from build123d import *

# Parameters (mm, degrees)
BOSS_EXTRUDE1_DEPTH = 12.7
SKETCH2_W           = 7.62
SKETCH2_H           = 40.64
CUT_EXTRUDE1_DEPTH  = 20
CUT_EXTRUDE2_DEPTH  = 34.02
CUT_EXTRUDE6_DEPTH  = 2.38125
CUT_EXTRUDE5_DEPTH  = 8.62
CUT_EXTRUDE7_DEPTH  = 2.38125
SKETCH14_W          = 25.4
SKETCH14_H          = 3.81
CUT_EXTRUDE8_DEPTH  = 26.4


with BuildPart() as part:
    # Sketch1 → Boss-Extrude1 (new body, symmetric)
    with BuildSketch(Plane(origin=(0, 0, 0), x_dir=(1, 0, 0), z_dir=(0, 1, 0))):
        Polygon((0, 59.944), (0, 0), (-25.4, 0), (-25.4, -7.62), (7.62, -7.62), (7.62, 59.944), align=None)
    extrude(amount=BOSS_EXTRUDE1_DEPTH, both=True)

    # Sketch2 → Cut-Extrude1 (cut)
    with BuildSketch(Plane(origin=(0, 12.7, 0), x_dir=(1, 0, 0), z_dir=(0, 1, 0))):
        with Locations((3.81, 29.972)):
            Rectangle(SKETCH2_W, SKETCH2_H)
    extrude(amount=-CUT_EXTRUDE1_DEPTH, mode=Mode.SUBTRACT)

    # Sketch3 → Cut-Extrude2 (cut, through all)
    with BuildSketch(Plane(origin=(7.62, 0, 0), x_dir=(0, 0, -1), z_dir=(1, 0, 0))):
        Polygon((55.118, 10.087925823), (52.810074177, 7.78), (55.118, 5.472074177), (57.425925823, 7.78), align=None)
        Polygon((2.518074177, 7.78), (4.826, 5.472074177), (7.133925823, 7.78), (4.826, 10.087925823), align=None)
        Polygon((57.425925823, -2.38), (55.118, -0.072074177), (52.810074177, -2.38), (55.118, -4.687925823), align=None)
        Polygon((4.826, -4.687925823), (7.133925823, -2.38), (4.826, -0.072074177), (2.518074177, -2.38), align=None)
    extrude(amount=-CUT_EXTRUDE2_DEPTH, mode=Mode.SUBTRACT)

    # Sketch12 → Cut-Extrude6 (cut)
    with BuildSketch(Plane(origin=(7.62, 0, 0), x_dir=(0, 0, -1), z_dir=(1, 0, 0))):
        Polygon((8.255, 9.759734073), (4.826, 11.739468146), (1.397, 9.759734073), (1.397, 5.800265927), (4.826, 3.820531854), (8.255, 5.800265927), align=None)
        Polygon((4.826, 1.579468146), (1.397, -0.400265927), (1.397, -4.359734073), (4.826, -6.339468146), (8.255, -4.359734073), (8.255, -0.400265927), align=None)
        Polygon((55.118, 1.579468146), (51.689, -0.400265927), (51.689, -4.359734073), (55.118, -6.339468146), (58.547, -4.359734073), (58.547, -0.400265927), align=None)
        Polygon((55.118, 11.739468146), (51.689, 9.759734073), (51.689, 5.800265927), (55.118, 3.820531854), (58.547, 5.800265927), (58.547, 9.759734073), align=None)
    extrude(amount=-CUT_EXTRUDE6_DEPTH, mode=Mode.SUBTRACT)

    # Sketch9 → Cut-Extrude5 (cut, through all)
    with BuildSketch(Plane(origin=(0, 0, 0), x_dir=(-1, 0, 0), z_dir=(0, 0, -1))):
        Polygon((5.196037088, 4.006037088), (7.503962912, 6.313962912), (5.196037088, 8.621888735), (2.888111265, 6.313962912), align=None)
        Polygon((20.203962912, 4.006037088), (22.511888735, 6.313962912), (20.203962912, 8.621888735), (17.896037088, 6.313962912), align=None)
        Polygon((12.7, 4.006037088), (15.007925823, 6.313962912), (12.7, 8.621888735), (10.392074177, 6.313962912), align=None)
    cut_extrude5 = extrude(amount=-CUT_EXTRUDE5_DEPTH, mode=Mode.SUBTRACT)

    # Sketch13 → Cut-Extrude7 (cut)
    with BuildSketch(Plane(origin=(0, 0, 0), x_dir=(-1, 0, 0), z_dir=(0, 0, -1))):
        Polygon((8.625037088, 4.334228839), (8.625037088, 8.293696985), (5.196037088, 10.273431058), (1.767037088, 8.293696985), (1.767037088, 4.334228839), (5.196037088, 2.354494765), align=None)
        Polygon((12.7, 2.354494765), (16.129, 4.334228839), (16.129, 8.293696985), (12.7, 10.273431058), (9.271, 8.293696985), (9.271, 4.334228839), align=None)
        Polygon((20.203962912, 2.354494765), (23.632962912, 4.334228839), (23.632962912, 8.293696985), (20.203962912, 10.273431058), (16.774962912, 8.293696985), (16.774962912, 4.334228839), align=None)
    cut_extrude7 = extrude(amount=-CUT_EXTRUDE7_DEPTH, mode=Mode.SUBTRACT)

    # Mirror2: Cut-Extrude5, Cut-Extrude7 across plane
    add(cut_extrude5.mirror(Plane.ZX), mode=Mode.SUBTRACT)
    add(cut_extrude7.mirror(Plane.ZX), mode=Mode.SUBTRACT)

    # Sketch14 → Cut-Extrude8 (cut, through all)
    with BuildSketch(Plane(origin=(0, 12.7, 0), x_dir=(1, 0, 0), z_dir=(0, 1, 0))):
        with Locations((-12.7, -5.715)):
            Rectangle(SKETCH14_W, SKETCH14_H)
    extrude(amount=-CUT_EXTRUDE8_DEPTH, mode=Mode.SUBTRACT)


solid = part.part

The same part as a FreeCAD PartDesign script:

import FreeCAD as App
import Part
import Sketcher
Q = App.Units.Quantity

doc = App.newDocument("Part")
body = doc.addObject("PartDesign::Body", "Body")

# Sketch on XZ plane
sketch1 = doc.addObject("Sketcher::SketchObject", "Sketch")
body.addObject(sketch1)
sketch1.AttachmentSupport = (doc.XZ_Plane, [""])
sketch1.MapMode = "FlatFace"
sketch1.addGeometry(Part.LineSegment(App.Vector(0, -59.944, 0), App.Vector(0, 0, 0)), False)
sketch1.addGeometry(Part.LineSegment(App.Vector(0, 0, 0), App.Vector(-25.4, 0, 0)), False)
sketch1.addGeometry(Part.LineSegment(App.Vector(-25.4, 0, 0), App.Vector(-25.4, 7.62, 0)), False)
sketch1.addGeometry(Part.LineSegment(App.Vector(-25.4, 7.62, 0), App.Vector(7.62, 7.62, 0)), False)
sketch1.addGeometry(Part.LineSegment(App.Vector(7.62, 7.62, 0), App.Vector(7.62, -59.944, 0)), False)
sketch1.addGeometry(Part.LineSegment(App.Vector(7.62, -59.944, 0), App.Vector(0, -59.944, 0)), False)
sketch1.addConstraint(Sketcher.Constraint("Coincident", 0, 2, 1, 1))
sketch1.addConstraint(Sketcher.Constraint("Coincident", 1, 2, 2, 1))
sketch1.addConstraint(Sketcher.Constraint("Coincident", 2, 2, 3, 1))
sketch1.addConstraint(Sketcher.Constraint("Coincident", 3, 2, 4, 1))
sketch1.addConstraint(Sketcher.Constraint("Coincident", 4, 2, 5, 1))
sketch1.addConstraint(Sketcher.Constraint("Coincident", 5, 2, 0, 1))
sketch1.addConstraint(Sketcher.Constraint("Vertical", 0))
sketch1.addConstraint(Sketcher.Constraint("Horizontal", 1))
sketch1.addConstraint(Sketcher.Constraint("Vertical", 2))
sketch1.addConstraint(Sketcher.Constraint("Horizontal", 3))
sketch1.addConstraint(Sketcher.Constraint("Vertical", 4))
sketch1.addConstraint(Sketcher.Constraint("Horizontal", 5))
sketch1.addConstraint(Sketcher.Constraint("Coincident", 0, 2, -1, 1))
sketch1.addConstraint(Sketcher.Constraint("Equal", 5, 2))
sketch1.addConstraint(Sketcher.Constraint("DistanceX", 1, 2, 1, 1, Q("1 in")))
sketch1.addConstraint(Sketcher.Constraint("DistanceX", 3, 1, 3, 2, Q("1.3 in")))
sketch1.addConstraint(Sketcher.Constraint("DistanceY", 0, 1, 0, 2, Q("2.36 in")))
pad1 = doc.addObject("PartDesign::Pad", "Pad")
body.addObject(pad1)
pad1.Profile = sketch1
pad1.Length = Q("1 in")
pad1.Midplane = True

# Sketch on XZ plane
sketch2 = doc.addObject("Sketcher::SketchObject", "Sketch001")
body.addObject(sketch2)
sketch2.AttachmentSupport = (doc.XZ_Plane, [""])
sketch2.MapMode = "FlatFace"
sketch2.AttachmentOffset = App.Placement(App.Vector(0, 0, -0.5 * 25.4), App.Rotation())
sketch2.addGeometry(Part.LineSegment(App.Vector(0, -50.292, 0), App.Vector(0, -9.652, 0)), False)
sketch2.addGeometry(Part.LineSegment(App.Vector(0, -9.652, 0), App.Vector(7.62, -9.652, 0)), False)
sketch2.addGeometry(Part.LineSegment(App.Vector(7.62, -9.652, 0), App.Vector(7.62, -50.292, 0)), False)
sketch2.addGeometry(Part.LineSegment(App.Vector(7.62, -50.292, 0), App.Vector(0, -50.292, 0)), False)
sketch2.addConstraint(Sketcher.Constraint("Coincident", 0, 2, 1, 1))
sketch2.addConstraint(Sketcher.Constraint("Coincident", 1, 2, 2, 1))
sketch2.addConstraint(Sketcher.Constraint("Coincident", 2, 2, 3, 1))
sketch2.addConstraint(Sketcher.Constraint("Coincident", 3, 2, 0, 1))
sketch2.addConstraint(Sketcher.Constraint("Vertical", 0))
sketch2.addConstraint(Sketcher.Constraint("Horizontal", 1))
sketch2.addConstraint(Sketcher.Constraint("Vertical", 2))
sketch2.addConstraint(Sketcher.Constraint("Horizontal", 3))
sketch2.addConstraint(Sketcher.Constraint("PointOnObject", 0, 2, -2))
sketch2.addConstraint(Sketcher.Constraint("DistanceX", 1, 1, 1, 2, Q("0.3 in")))
sketch2.addConstraint(Sketcher.Constraint("DistanceY", 0, 1, 0, 2, Q("1.6 in")))
sketch2.addConstraint(Sketcher.Constraint("DistanceY", 0, 2, -1, 1, Q("0.38 in")))
pocket1 = doc.addObject("PartDesign::Pocket", "Pocket")
body.addObject(pocket1)
pocket1.Profile = sketch2
pocket1.Length = 20
pocket1.Reversed = True

# Sketch on YZ plane
sketch3 = doc.addObject("Sketcher::SketchObject", "Sketch002")
body.addObject(sketch3)
sketch3.AttachmentSupport = (doc.YZ_Plane, [""])
sketch3.MapMode = "FlatFace"
sketch3.AttachmentOffset = App.Placement(App.Vector(0, 0, 0.3 * 25.4), App.Rotation())
sketch3.addGeometry(Part.LineSegment(App.Vector(10.087926, -55.118, 0), App.Vector(7.78, -52.810074, 0)), False)
sketch3.addGeometry(Part.LineSegment(App.Vector(7.78, -52.810074, 0), App.Vector(5.472074, -55.118, 0)), False)
sketch3.addGeometry(Part.LineSegment(App.Vector(5.472074, -55.118, 0), App.Vector(7.78, -57.425926, 0)), False)
sketch3.addGeometry(Part.LineSegment(App.Vector(7.78, -57.425926, 0), App.Vector(10.087926, -55.118, 0)), False)
sketch3.addGeometry(Part.LineSegment(App.Vector(7.78, -2.518074, 0), App.Vector(5.472074, -4.826, 0)), False)
sketch3.addGeometry(Part.LineSegment(App.Vector(5.472074, -4.826, 0), App.Vector(7.78, -7.133926, 0)), False)
sketch3.addGeometry(Part.LineSegment(App.Vector(7.78, -7.133926, 0), App.Vector(10.087926, -4.826, 0)), False)
sketch3.addGeometry(Part.LineSegment(App.Vector(10.087926, -4.826, 0), App.Vector(7.78, -2.518074, 0)), False)
sketch3.addGeometry(Part.LineSegment(App.Vector(-2.38, -57.425926, 0), App.Vector(-0.072074, -55.118, 0)), False)
sketch3.addGeometry(Part.LineSegment(App.Vector(-0.072074, -55.118, 0), App.Vector(-2.38, -52.810074, 0)), False)
sketch3.addGeometry(Part.LineSegment(App.Vector(-2.38, -52.810074, 0), App.Vector(-4.687926, -55.118, 0)), False)
sketch3.addGeometry(Part.LineSegment(App.Vector(-4.687926, -55.118, 0), App.Vector(-2.38, -57.425926, 0)), False)
sketch3.addGeometry(Part.LineSegment(App.Vector(-4.687926, -4.826, 0), App.Vector(-2.38, -7.133926, 0)), False)
sketch3.addGeometry(Part.LineSegment(App.Vector(-2.38, -7.133926, 0), App.Vector(-0.072074, -4.826, 0)), False)
sketch3.addGeometry(Part.LineSegment(App.Vector(-0.072074, -4.826, 0), App.Vector(-2.38, -2.518074, 0)), False)
sketch3.addGeometry(Part.LineSegment(App.Vector(-2.38, -2.518074, 0), App.Vector(-4.687926, -4.826, 0)), False)
sketch3.addConstraint(Sketcher.Constraint("Coincident", 0, 2, 1, 1))
sketch3.addConstraint(Sketcher.Constraint("Coincident", 1, 2, 2, 1))
sketch3.addConstraint(Sketcher.Constraint("Coincident", 2, 2, 3, 1))
sketch3.addConstraint(Sketcher.Constraint("Coincident", 3, 2, 0, 1))
sketch3.addConstraint(Sketcher.Constraint("Coincident", 4, 2, 5, 1))
sketch3.addConstraint(Sketcher.Constraint("Coincident", 5, 2, 6, 1))
sketch3.addConstraint(Sketcher.Constraint("Coincident", 6, 2, 7, 1))
sketch3.addConstraint(Sketcher.Constraint("Coincident", 7, 2, 4, 1))
sketch3.addConstraint(Sketcher.Constraint("Coincident", 8, 2, 9, 1))
sketch3.addConstraint(Sketcher.Constraint("Coincident", 9, 2, 10, 1))
sketch3.addConstraint(Sketcher.Constraint("Coincident", 10, 2, 11, 1))
sketch3.addConstraint(Sketcher.Constraint("Coincident", 11, 2, 8, 1))
sketch3.addConstraint(Sketcher.Constraint("Coincident", 12, 2, 13, 1))
sketch3.addConstraint(Sketcher.Constraint("Coincident", 13, 2, 14, 1))
sketch3.addConstraint(Sketcher.Constraint("Coincident", 14, 2, 15, 1))
sketch3.addConstraint(Sketcher.Constraint("Coincident", 15, 2, 12, 1))
sketch3.addConstraint(Sketcher.Constraint("Perpendicular", 0, 1))
sketch3.addConstraint(Sketcher.Constraint("Perpendicular", 1, 2))
sketch3.addConstraint(Sketcher.Constraint("Perpendicular", 2, 3))
sketch3.addConstraint(Sketcher.Constraint("Parallel", 3, 4))
sketch3.addConstraint(Sketcher.Constraint("Perpendicular", 4, 5))
sketch3.addConstraint(Sketcher.Constraint("Perpendicular", 5, 6))
sketch3.addConstraint(Sketcher.Constraint("Perpendicular", 6, 7))
sketch3.addConstraint(Sketcher.Constraint("Perpendicular", 7, 8))
sketch3.addConstraint(Sketcher.Constraint("Perpendicular", 8, 9))
sketch3.addConstraint(Sketcher.Constraint("Perpendicular", 9, 10))
sketch3.addConstraint(Sketcher.Constraint("Perpendicular", 10, 11))
sketch3.addConstraint(Sketcher.Constraint("Parallel", 11, 12))
sketch3.addConstraint(Sketcher.Constraint("Perpendicular", 12, 13))
sketch3.addConstraint(Sketcher.Constraint("Perpendicular", 13, 14))
sketch3.addConstraint(Sketcher.Constraint("Perpendicular", 14, 15))
sketch3.addConstraint(Sketcher.Constraint("Horizontal", 1, 2, 3, 2))
sketch3.addConstraint(Sketcher.Constraint("Horizontal", 4, 2, 6, 2))
sketch3.addConstraint(Sketcher.Constraint("Horizontal", 3, 2, 8, 2))
sketch3.addConstraint(Sketcher.Constraint("Horizontal", 0, 2, 9, 2))
sketch3.addConstraint(Sketcher.Constraint("Horizontal", 8, 2, 10, 2))
sketch3.addConstraint(Sketcher.Constraint("Horizontal", 5, 2, 12, 2))
sketch3.addConstraint(Sketcher.Constraint("Horizontal", 6, 2, 13, 2))
sketch3.addConstraint(Sketcher.Constraint("Horizontal", 7, 2, 14, 2))
sketch3.addConstraint(Sketcher.Constraint("Vertical", 0, 2, 2, 2))
sketch3.addConstraint(Sketcher.Constraint("Vertical", 1, 2, 4, 2))
sketch3.addConstraint(Sketcher.Constraint("Vertical", 2, 2, 5, 2))
sketch3.addConstraint(Sketcher.Constraint("Vertical", 11, 2, 12, 2))
sketch3.addConstraint(Sketcher.Constraint("DistanceX", 8, 2, 3, 2, Q("0.4 in")))
sketch3.addConstraint(Sketcher.Constraint("DistanceY", 1, 2, -1, 1, Q("2.17 in")))
sketch3.addConstraint(Sketcher.Constraint("DistanceY", 4, 2, -1, 1, Q("0.19 in")))
sketch3.addConstraint(Sketcher.Constraint("Distance", 0, Q("0.1285 in")))
sketch3.addConstraint(Sketcher.Constraint("DistanceX", -1, 1, 0, 2, Q("7.78 mm")))
pocket2 = doc.addObject("PartDesign::Pocket", "Pocket001")
body.addObject(pocket2)
pocket2.Profile = sketch3
pocket2.Type = "ThroughAll"

# Sketch on YZ plane
sketch4 = doc.addObject("Sketcher::SketchObject", "Sketch003")
body.addObject(sketch4)
sketch4.AttachmentSupport = (doc.YZ_Plane, [""])
sketch4.MapMode = "FlatFace"
sketch4.AttachmentOffset = App.Placement(App.Vector(0, 0, 0.3 * 25.4), App.Rotation())
sketch4.addGeometry(Part.LineSegment(App.Vector(9.759734, -8.255, 0), App.Vector(11.739468, -4.826, 0)), False)
sketch4.addGeometry(Part.LineSegment(App.Vector(11.739468, -4.826, 0), App.Vector(9.759734, -1.397, 0)), False)
sketch4.addGeometry(Part.LineSegment(App.Vector(9.759734, -1.397, 0), App.Vector(5.800266, -1.397, 0)), False)
sketch4.addGeometry(Part.LineSegment(App.Vector(5.800266, -1.397, 0), App.Vector(3.820532, -4.826, 0)), False)
sketch4.addGeometry(Part.LineSegment(App.Vector(3.820532, -4.826, 0), App.Vector(5.800266, -8.255, 0)), False)
sketch4.addGeometry(Part.LineSegment(App.Vector(5.800266, -8.255, 0), App.Vector(9.759734, -8.255, 0)), False)
sketch4.addGeometry(Part.LineSegment(App.Vector(1.579468, -4.826, 0), App.Vector(-0.400266, -1.397, 0)), False)
sketch4.addGeometry(Part.LineSegment(App.Vector(-0.400266, -1.397, 0), App.Vector(-4.359734, -1.397, 0)), False)
sketch4.addGeometry(Part.LineSegment(App.Vector(-4.359734, -1.397, 0), App.Vector(-6.339468, -4.826, 0)), False)
sketch4.addGeometry(Part.LineSegment(App.Vector(-6.339468, -4.826, 0), App.Vector(-4.359734, -8.255, 0)), False)
sketch4.addGeometry(Part.LineSegment(App.Vector(-4.359734, -8.255, 0), App.Vector(-0.400266, -8.255, 0)), False)
sketch4.addGeometry(Part.LineSegment(App.Vector(-0.400266, -8.255, 0), App.Vector(1.579468, -4.826, 0)), False)
sketch4.addGeometry(Part.LineSegment(App.Vector(1.579468, -55.118, 0), App.Vector(-0.400266, -51.689, 0)), False)
sketch4.addGeometry(Part.LineSegment(App.Vector(-0.400266, -51.689, 0), App.Vector(-4.359734, -51.689, 0)), False)
sketch4.addGeometry(Part.LineSegment(App.Vector(-4.359734, -51.689, 0), App.Vector(-6.339468, -55.118, 0)), False)
sketch4.addGeometry(Part.LineSegment(App.Vector(-6.339468, -55.118, 0), App.Vector(-4.359734, -58.547, 0)), False)
sketch4.addGeometry(Part.LineSegment(App.Vector(-4.359734, -58.547, 0), App.Vector(-0.400266, -58.547, 0)), False)
sketch4.addGeometry(Part.LineSegment(App.Vector(-0.400266, -58.547, 0), App.Vector(1.579468, -55.118, 0)), False)
sketch4.addGeometry(Part.LineSegment(App.Vector(11.739468, -55.118, 0), App.Vector(9.759734, -51.689, 0)), False)
sketch4.addGeometry(Part.LineSegment(App.Vector(9.759734, -51.689, 0), App.Vector(5.800266, -51.689, 0)), False)
sketch4.addGeometry(Part.LineSegment(App.Vector(5.800266, -51.689, 0), App.Vector(3.820532, -55.118, 0)), False)
sketch4.addGeometry(Part.LineSegment(App.Vector(3.820532, -55.118, 0), App.Vector(5.800266, -58.547, 0)), False)
sketch4.addGeometry(Part.LineSegment(App.Vector(5.800266, -58.547, 0), App.Vector(9.759734, -58.547, 0)), False)
sketch4.addGeometry(Part.LineSegment(App.Vector(9.759734, -58.547, 0), App.Vector(11.739468, -55.118, 0)), False)
sketch4.addConstraint(Sketcher.Constraint("Coincident", 0, 2, 1, 1))
sketch4.addConstraint(Sketcher.Constraint("Coincident", 1, 2, 2, 1))
sketch4.addConstraint(Sketcher.Constraint("Coincident", 2, 2, 3, 1))
sketch4.addConstraint(Sketcher.Constraint("Coincident", 3, 2, 4, 1))
sketch4.addConstraint(Sketcher.Constraint("Coincident", 4, 2, 5, 1))
sketch4.addConstraint(Sketcher.Constraint("Coincident", 5, 2, 0, 1))
sketch4.addConstraint(Sketcher.Constraint("Coincident", 6, 2, 7, 1))
sketch4.addConstraint(Sketcher.Constraint("Coincident", 7, 2, 8, 1))
sketch4.addConstraint(Sketcher.Constraint("Coincident", 8, 2, 9, 1))
sketch4.addConstraint(Sketcher.Constraint("Coincident", 9, 2, 10, 1))
sketch4.addConstraint(Sketcher.Constraint("Coincident", 10, 2, 11, 1))
sketch4.addConstraint(Sketcher.Constraint("Coincident", 11, 2, 6, 1))
sketch4.addConstraint(Sketcher.Constraint("Coincident", 12, 2, 13, 1))
sketch4.addConstraint(Sketcher.Constraint("Coincident", 13, 2, 14, 1))
sketch4.addConstraint(Sketcher.Constraint("Coincident", 14, 2, 15, 1))
sketch4.addConstraint(Sketcher.Constraint("Coincident", 15, 2, 16, 1))
sketch4.addConstraint(Sketcher.Constraint("Coincident", 16, 2, 17, 1))
sketch4.addConstraint(Sketcher.Constraint("Coincident", 17, 2, 12, 1))
sketch4.addConstraint(Sketcher.Constraint("Coincident", 18, 2, 19, 1))
sketch4.addConstraint(Sketcher.Constraint("Coincident", 19, 2, 20, 1))
sketch4.addConstraint(Sketcher.Constraint("Coincident", 20, 2, 21, 1))
sketch4.addConstraint(Sketcher.Constraint("Coincident", 21, 2, 22, 1))
sketch4.addConstraint(Sketcher.Constraint("Coincident", 22, 2, 23, 1))
sketch4.addConstraint(Sketcher.Constraint("Coincident", 23, 2, 18, 1))
sketch4.addConstraint(Sketcher.Constraint("Horizontal", 2))
sketch4.addConstraint(Sketcher.Constraint("Horizontal", 5))
sketch4.addConstraint(Sketcher.Constraint("Horizontal", 7))
sketch4.addConstraint(Sketcher.Constraint("Horizontal", 10))
sketch4.addConstraint(Sketcher.Constraint("Horizontal", 13))
sketch4.addConstraint(Sketcher.Constraint("Horizontal", 16))
sketch4.addConstraint(Sketcher.Constraint("Horizontal", 19))
sketch4.addConstraint(Sketcher.Constraint("Horizontal", 22))
sketch4.addConstraint(Sketcher.Constraint("Parallel", 0, 3))
sketch4.addConstraint(Sketcher.Constraint("Parallel", 1, 4))
sketch4.addConstraint(Sketcher.Constraint("Parallel", 4, 6))
sketch4.addConstraint(Sketcher.Constraint("Parallel", 3, 8))
sketch4.addConstraint(Sketcher.Constraint("Parallel", 6, 9))
sketch4.addConstraint(Sketcher.Constraint("Parallel", 8, 11))
sketch4.addConstraint(Sketcher.Constraint("Parallel", 9, 12))
sketch4.addConstraint(Sketcher.Constraint("Parallel", 11, 14))
sketch4.addConstraint(Sketcher.Constraint("Parallel", 12, 15))
sketch4.addConstraint(Sketcher.Constraint("Parallel", 14, 17))
sketch4.addConstraint(Sketcher.Constraint("Parallel", 15, 18))
sketch4.addConstraint(Sketcher.Constraint("Parallel", 17, 20))
sketch4.addConstraint(Sketcher.Constraint("Parallel", 18, 21))
sketch4.addConstraint(Sketcher.Constraint("Parallel", 20, 23))
sketch4.addConstraint(Sketcher.Constraint("Horizontal", 0, 2, 3, 2))
sketch4.addConstraint(Sketcher.Constraint("Horizontal", 2, 2, 6, 2))
sketch4.addConstraint(Sketcher.Constraint("Horizontal", 3, 2, 8, 2))
sketch4.addConstraint(Sketcher.Constraint("Horizontal", 5, 2, 9, 2))
sketch4.addConstraint(Sketcher.Constraint("Horizontal", 8, 2, 11, 2))
sketch4.addConstraint(Sketcher.Constraint("Horizontal", 14, 2, 17, 2))
sketch4.addConstraint(Sketcher.Constraint("Horizontal", 13, 2, 18, 2))
sketch4.addConstraint(Sketcher.Constraint("Horizontal", 17, 2, 20, 2))
sketch4.addConstraint(Sketcher.Constraint("Horizontal", 16, 2, 21, 2))
sketch4.addConstraint(Sketcher.Constraint("Horizontal", 20, 2, 23, 2))
sketch4.addConstraint(Sketcher.Constraint("Vertical", 2, 2, 4, 2))
sketch4.addConstraint(Sketcher.Constraint("Vertical", 1, 2, 5, 2))
sketch4.addConstraint(Sketcher.Constraint("Vertical", 10, 2, 12, 2))
sketch4.addConstraint(Sketcher.Constraint("Vertical", 9, 2, 13, 2))
sketch4.addConstraint(Sketcher.Constraint("Vertical", 8, 2, 14, 2))
sketch4.addConstraint(Sketcher.Constraint("Vertical", 13, 2, 15, 2))
sketch4.addConstraint(Sketcher.Constraint("Vertical", 5, 2, 18, 2))
sketch4.addConstraint(Sketcher.Constraint("Vertical", 4, 2, 19, 2))
sketch4.addConstraint(Sketcher.Constraint("Equal", 5, 7))
sketch4.addConstraint(Sketcher.Constraint("Angle", 0, Q("60 deg")))
sketch4.addConstraint(Sketcher.Constraint("DistanceX", 6, 2, 1, 2, Q("0.4 in")))
sketch4.addConstraint(Sketcher.Constraint("DistanceY", 0, 2, -1, 1, Q("0.19 in")))
sketch4.addConstraint(Sketcher.Constraint("DistanceY", 14, 2, -1, 1, Q("2.17 in")))
sketch4.addConstraint(Sketcher.Constraint("DistanceY", 4, 2, 2, 2, Q("0.27 in")))
sketch4.addConstraint(Sketcher.Constraint("DistanceX", 2, 2, 2, 1, Q("3.959468 mm")))
sketch4.addConstraint(Sketcher.Constraint("DistanceX", -1, 1, 0, 2, Q("11.739468 mm")))
pocket3 = doc.addObject("PartDesign::Pocket", "Pocket002")
body.addObject(pocket3)
pocket3.Profile = sketch4
pocket3.Length = Q("0.09375 in")

# Sketch on XY plane
sketch5 = doc.addObject("Sketcher::SketchObject", "Sketch004")
body.addObject(sketch5)
sketch5.AttachmentSupport = (doc.XY_Plane, [""])
sketch5.MapMode = "FlatFace"
sketch5.addGeometry(Part.LineSegment(App.Vector(-5.196037, 4.006037, 0), App.Vector(-7.503963, 6.313963, 0)), False)
sketch5.addGeometry(Part.LineSegment(App.Vector(-7.503963, 6.313963, 0), App.Vector(-5.196037, 8.621889, 0)), False)
sketch5.addGeometry(Part.LineSegment(App.Vector(-5.196037, 8.621889, 0), App.Vector(-2.888111, 6.313963, 0)), False)
sketch5.addGeometry(Part.LineSegment(App.Vector(-2.888111, 6.313963, 0), App.Vector(-5.196037, 4.006037, 0)), False)
sketch5.addGeometry(Part.LineSegment(App.Vector(-20.203963, 4.006037, 0), App.Vector(-22.511889, 6.313963, 0)), False)
sketch5.addGeometry(Part.LineSegment(App.Vector(-22.511889, 6.313963, 0), App.Vector(-20.203963, 8.621889, 0)), False)
sketch5.addGeometry(Part.LineSegment(App.Vector(-20.203963, 8.621889, 0), App.Vector(-17.896037, 6.313963, 0)), False)
sketch5.addGeometry(Part.LineSegment(App.Vector(-17.896037, 6.313963, 0), App.Vector(-20.203963, 4.006037, 0)), False)
sketch5.addGeometry(Part.LineSegment(App.Vector(-12.7, 4.006037, 0), App.Vector(-15.007926, 6.313963, 0)), False)
sketch5.addGeometry(Part.LineSegment(App.Vector(-15.007926, 6.313963, 0), App.Vector(-12.7, 8.621889, 0)), False)
sketch5.addGeometry(Part.LineSegment(App.Vector(-12.7, 8.621889, 0), App.Vector(-10.392074, 6.313963, 0)), False)
sketch5.addGeometry(Part.LineSegment(App.Vector(-10.392074, 6.313963, 0), App.Vector(-12.7, 4.006037, 0)), False)
sketch5.addConstraint(Sketcher.Constraint("Coincident", 0, 2, 1, 1))
sketch5.addConstraint(Sketcher.Constraint("Coincident", 1, 2, 2, 1))
sketch5.addConstraint(Sketcher.Constraint("Coincident", 2, 2, 3, 1))
sketch5.addConstraint(Sketcher.Constraint("Coincident", 3, 2, 0, 1))
sketch5.addConstraint(Sketcher.Constraint("Coincident", 4, 2, 5, 1))
sketch5.addConstraint(Sketcher.Constraint("Coincident", 5, 2, 6, 1))
sketch5.addConstraint(Sketcher.Constraint("Coincident", 6, 2, 7, 1))
sketch5.addConstraint(Sketcher.Constraint("Coincident", 7, 2, 4, 1))
sketch5.addConstraint(Sketcher.Constraint("Coincident", 8, 2, 9, 1))
sketch5.addConstraint(Sketcher.Constraint("Coincident", 9, 2, 10, 1))
sketch5.addConstraint(Sketcher.Constraint("Coincident", 10, 2, 11, 1))
sketch5.addConstraint(Sketcher.Constraint("Coincident", 11, 2, 8, 1))
sketch5.addConstraint(Sketcher.Constraint("Perpendicular", 0, 1))
sketch5.addConstraint(Sketcher.Constraint("Perpendicular", 1, 2))
sketch5.addConstraint(Sketcher.Constraint("Perpendicular", 2, 3))
sketch5.addConstraint(Sketcher.Constraint("Perpendicular", 3, 4))
sketch5.addConstraint(Sketcher.Constraint("Perpendicular", 4, 5))
sketch5.addConstraint(Sketcher.Constraint("Perpendicular", 5, 6))
sketch5.addConstraint(Sketcher.Constraint("Perpendicular", 6, 7))
sketch5.addConstraint(Sketcher.Constraint("Perpendicular", 7, 8))
sketch5.addConstraint(Sketcher.Constraint("Perpendicular", 8, 9))
sketch5.addConstraint(Sketcher.Constraint("Perpendicular", 9, 10))
sketch5.addConstraint(Sketcher.Constraint("Perpendicular", 10, 11))
sketch5.addConstraint(Sketcher.Constraint("Horizontal", 0, 2, 2, 2))
sketch5.addConstraint(Sketcher.Constraint("Horizontal", 2, 2, 4, 2))
sketch5.addConstraint(Sketcher.Constraint("Horizontal", 1, 2, 5, 2))
sketch5.addConstraint(Sketcher.Constraint("Horizontal", 4, 2, 6, 2))
sketch5.addConstraint(Sketcher.Constraint("Horizontal", 6, 2, 8, 2))
sketch5.addConstraint(Sketcher.Constraint("Horizontal", 5, 2, 9, 2))
sketch5.addConstraint(Sketcher.Constraint("Horizontal", 8, 2, 10, 2))
sketch5.addConstraint(Sketcher.Constraint("Vertical", 1, 2, 3, 2))
sketch5.addConstraint(Sketcher.Constraint("DistanceX", 9, 2, -1, 1, Q("0.5 in")))
sketch5.addConstraint(Sketcher.Constraint("DistanceX", 5, 2, 0, 2, Q("0.5 in")))
sketch5.addConstraint(Sketcher.Constraint("Distance", 0, Q("0.1285 in")))
sketch5.addConstraint(Sketcher.Constraint("DistanceY", -1, 1, 1, 2, Q("8.621889 mm")))
sketch5.addConstraint(Sketcher.Constraint("DistanceX", 2, 2, -1, 1, Q("2.888111 mm")))
pocket4 = doc.addObject("PartDesign::Pocket", "Pocket003")
body.addObject(pocket4)
pocket4.Profile = sketch5
pocket4.Type = "ThroughAll"
pocket4.Reversed = True

# Sketch on XY plane
sketch6 = doc.addObject("Sketcher::SketchObject", "Sketch005")
body.addObject(sketch6)
sketch6.AttachmentSupport = (doc.XY_Plane, [""])
sketch6.MapMode = "FlatFace"
sketch6.addGeometry(Part.LineSegment(App.Vector(-8.625037, 4.334229, 0), App.Vector(-8.625037, 8.293697, 0)), False)
sketch6.addGeometry(Part.LineSegment(App.Vector(-8.625037, 8.293697, 0), App.Vector(-5.196037, 10.273431, 0)), False)
sketch6.addGeometry(Part.LineSegment(App.Vector(-5.196037, 10.273431, 0), App.Vector(-1.767037, 8.293697, 0)), False)
sketch6.addGeometry(Part.LineSegment(App.Vector(-1.767037, 8.293697, 0), App.Vector(-1.767037, 4.334229, 0)), False)
sketch6.addGeometry(Part.LineSegment(App.Vector(-1.767037, 4.334229, 0), App.Vector(-5.196037, 2.354495, 0)), False)
sketch6.addGeometry(Part.LineSegment(App.Vector(-5.196037, 2.354495, 0), App.Vector(-8.625037, 4.334229, 0)), False)
sketch6.addGeometry(Part.LineSegment(App.Vector(-12.7, 2.354495, 0), App.Vector(-16.129, 4.334229, 0)), False)
sketch6.addGeometry(Part.LineSegment(App.Vector(-16.129, 4.334229, 0), App.Vector(-16.129, 8.293697, 0)), False)
sketch6.addGeometry(Part.LineSegment(App.Vector(-16.129, 8.293697, 0), App.Vector(-12.7, 10.273431, 0)), False)
sketch6.addGeometry(Part.LineSegment(App.Vector(-12.7, 10.273431, 0), App.Vector(-9.271, 8.293697, 0)), False)
sketch6.addGeometry(Part.LineSegment(App.Vector(-9.271, 8.293697, 0), App.Vector(-9.271, 4.334229, 0)), False)
sketch6.addGeometry(Part.LineSegment(App.Vector(-9.271, 4.334229, 0), App.Vector(-12.7, 2.354495, 0)), False)
sketch6.addGeometry(Part.LineSegment(App.Vector(-20.203963, 2.354495, 0), App.Vector(-23.632963, 4.334229, 0)), False)
sketch6.addGeometry(Part.LineSegment(App.Vector(-23.632963, 4.334229, 0), App.Vector(-23.632963, 8.293697, 0)), False)
sketch6.addGeometry(Part.LineSegment(App.Vector(-23.632963, 8.293697, 0), App.Vector(-20.203963, 10.273431, 0)), False)
sketch6.addGeometry(Part.LineSegment(App.Vector(-20.203963, 10.273431, 0), App.Vector(-16.774963, 8.293697, 0)), False)
sketch6.addGeometry(Part.LineSegment(App.Vector(-16.774963, 8.293697, 0), App.Vector(-16.774963, 4.334229, 0)), False)
sketch6.addGeometry(Part.LineSegment(App.Vector(-16.774963, 4.334229, 0), App.Vector(-20.203963, 2.354495, 0)), False)
sketch6.addConstraint(Sketcher.Constraint("Coincident", 0, 2, 1, 1))
sketch6.addConstraint(Sketcher.Constraint("Coincident", 1, 2, 2, 1))
sketch6.addConstraint(Sketcher.Constraint("Coincident", 2, 2, 3, 1))
sketch6.addConstraint(Sketcher.Constraint("Coincident", 3, 2, 4, 1))
sketch6.addConstraint(Sketcher.Constraint("Coincident", 4, 2, 5, 1))
sketch6.addConstraint(Sketcher.Constraint("Coincident", 5, 2, 0, 1))
sketch6.addConstraint(Sketcher.Constraint("Coincident", 6, 2, 7, 1))
sketch6.addConstraint(Sketcher.Constraint("Coincident", 7, 2, 8, 1))
sketch6.addConstraint(Sketcher.Constraint("Coincident", 8, 2, 9, 1))
sketch6.addConstraint(Sketcher.Constraint("Coincident", 9, 2, 10, 1))
sketch6.addConstraint(Sketcher.Constraint("Coincident", 10, 2, 11, 1))
sketch6.addConstraint(Sketcher.Constraint("Coincident", 11, 2, 6, 1))
sketch6.addConstraint(Sketcher.Constraint("Coincident", 12, 2, 13, 1))
sketch6.addConstraint(Sketcher.Constraint("Coincident", 13, 2, 14, 1))
sketch6.addConstraint(Sketcher.Constraint("Coincident", 14, 2, 15, 1))
sketch6.addConstraint(Sketcher.Constraint("Coincident", 15, 2, 16, 1))
sketch6.addConstraint(Sketcher.Constraint("Coincident", 16, 2, 17, 1))
sketch6.addConstraint(Sketcher.Constraint("Coincident", 17, 2, 12, 1))
sketch6.addConstraint(Sketcher.Constraint("Vertical", 0))
sketch6.addConstraint(Sketcher.Constraint("Vertical", 3))
sketch6.addConstraint(Sketcher.Constraint("Vertical", 7))
sketch6.addConstraint(Sketcher.Constraint("Vertical", 10))
sketch6.addConstraint(Sketcher.Constraint("Vertical", 13))
sketch6.addConstraint(Sketcher.Constraint("Vertical", 16))
sketch6.addConstraint(Sketcher.Constraint("Parallel", 1, 4))
sketch6.addConstraint(Sketcher.Constraint("Parallel", 2, 5))
sketch6.addConstraint(Sketcher.Constraint("Parallel", 5, 6))
sketch6.addConstraint(Sketcher.Constraint("Parallel", 4, 8))
sketch6.addConstraint(Sketcher.Constraint("Parallel", 6, 9))
sketch6.addConstraint(Sketcher.Constraint("Parallel", 8, 11))
sketch6.addConstraint(Sketcher.Constraint("Parallel", 9, 12))
sketch6.addConstraint(Sketcher.Constraint("Parallel", 11, 14))
sketch6.addConstraint(Sketcher.Constraint("Parallel", 12, 15))
sketch6.addConstraint(Sketcher.Constraint("Parallel", 14, 17))
sketch6.addConstraint(Sketcher.Constraint("Horizontal", 0, 2, 2, 2))
sketch6.addConstraint(Sketcher.Constraint("Horizontal", 3, 2, 5, 2))
sketch6.addConstraint(Sketcher.Constraint("Horizontal", 5, 2, 6, 2))
sketch6.addConstraint(Sketcher.Constraint("Horizontal", 2, 2, 7, 2))
sketch6.addConstraint(Sketcher.Constraint("Horizontal", 1, 2, 8, 2))
sketch6.addConstraint(Sketcher.Constraint("Horizontal", 7, 2, 9, 2))
sketch6.addConstraint(Sketcher.Constraint("Horizontal", 6, 2, 10, 2))
sketch6.addConstraint(Sketcher.Constraint("Horizontal", 10, 2, 12, 2))
sketch6.addConstraint(Sketcher.Constraint("Horizontal", 9, 2, 13, 2))
sketch6.addConstraint(Sketcher.Constraint("Horizontal", 8, 2, 14, 2))
sketch6.addConstraint(Sketcher.Constraint("Horizontal", 13, 2, 15, 2))
sketch6.addConstraint(Sketcher.Constraint("Horizontal", 12, 2, 16, 2))
sketch6.addConstraint(Sketcher.Constraint("Vertical", 1, 2, 4, 2))
sketch6.addConstraint(Sketcher.Constraint("Angle", 1, Q("30 deg")))
sketch6.addConstraint(Sketcher.Constraint("DistanceX", 8, 2, -1, 1, Q("0.5 in")))
sketch6.addConstraint(Sketcher.Constraint("DistanceX", 0, 2, 2, 2, Q("0.27 in")))
sketch6.addConstraint(Sketcher.Constraint("DistanceY", 0, 1, 0, 2, Q("3.959468 mm")))
sketch6.addConstraint(Sketcher.Constraint("DistanceY", -1, 1, 1, 2, Q("10.273431 mm")))
sketch6.addConstraint(Sketcher.Constraint("DistanceX", 0, 2, -1, 1, Q("8.625037 mm")))
sketch6.addConstraint(Sketcher.Constraint("DistanceX", 12, 2, -1, 1, Q("23.632963 mm")))
pocket5 = doc.addObject("PartDesign::Pocket", "Pocket004")
body.addObject(pocket5)
pocket5.Profile = sketch6
pocket5.Length = Q("0.09375 in")
pocket5.Reversed = True
doc.recompute()

mirrored = doc.addObject("PartDesign::Mirrored", "Mirrored")
body.addObject(mirrored)
mirrored.Originals = [pocket4, pocket5]
mirrored.MirrorPlane = (doc.XZ_Plane, [""])
body.Tip = mirrored

# Sketch on XZ plane
sketch7 = doc.addObject("Sketcher::SketchObject", "Sketch006")
body.addObject(sketch7)
sketch7.AttachmentSupport = (doc.XZ_Plane, [""])
sketch7.MapMode = "FlatFace"
sketch7.AttachmentOffset = App.Placement(App.Vector(0, 0, -0.5 * 25.4), App.Rotation())
sketch7.addGeometry(Part.LineSegment(App.Vector(-25.4, 3.81, 0), App.Vector(-25.4, 7.62, 0)), False)
sketch7.addGeometry(Part.LineSegment(App.Vector(-25.4, 7.62, 0), App.Vector(0, 7.62, 0)), False)
sketch7.addGeometry(Part.LineSegment(App.Vector(0, 7.62, 0), App.Vector(0, 3.81, 0)), False)
sketch7.addGeometry(Part.LineSegment(App.Vector(0, 3.81, 0), App.Vector(-25.4, 3.81, 0)), False)
sketch7.addConstraint(Sketcher.Constraint("Coincident", 0, 2, 1, 1))
sketch7.addConstraint(Sketcher.Constraint("Coincident", 1, 2, 2, 1))
sketch7.addConstraint(Sketcher.Constraint("Coincident", 2, 2, 3, 1))
sketch7.addConstraint(Sketcher.Constraint("Coincident", 3, 2, 0, 1))
sketch7.addConstraint(Sketcher.Constraint("Vertical", 0))
sketch7.addConstraint(Sketcher.Constraint("Horizontal", 1))
sketch7.addConstraint(Sketcher.Constraint("Vertical", 2))
sketch7.addConstraint(Sketcher.Constraint("Horizontal", 3))
sketch7.addConstraint(Sketcher.Constraint("PointOnObject", 1, 2, -2))
sketch7.addConstraint(Sketcher.Constraint("DistanceX", 1, 1, 1, 2, Q("1 in")))
sketch7.addConstraint(Sketcher.Constraint("DistanceY", 0, 1, 0, 2, Q("0.15 in")))
sketch7.addConstraint(Sketcher.Constraint("DistanceY", -1, 1, 0, 2, Q("0.3 in")))
pocket6 = doc.addObject("PartDesign::Pocket", "Pocket005")
body.addObject(pocket6)
pocket6.Profile = sketch7
pocket6.Type = "ThroughAll"
pocket6.Reversed = True

doc.recompute()
